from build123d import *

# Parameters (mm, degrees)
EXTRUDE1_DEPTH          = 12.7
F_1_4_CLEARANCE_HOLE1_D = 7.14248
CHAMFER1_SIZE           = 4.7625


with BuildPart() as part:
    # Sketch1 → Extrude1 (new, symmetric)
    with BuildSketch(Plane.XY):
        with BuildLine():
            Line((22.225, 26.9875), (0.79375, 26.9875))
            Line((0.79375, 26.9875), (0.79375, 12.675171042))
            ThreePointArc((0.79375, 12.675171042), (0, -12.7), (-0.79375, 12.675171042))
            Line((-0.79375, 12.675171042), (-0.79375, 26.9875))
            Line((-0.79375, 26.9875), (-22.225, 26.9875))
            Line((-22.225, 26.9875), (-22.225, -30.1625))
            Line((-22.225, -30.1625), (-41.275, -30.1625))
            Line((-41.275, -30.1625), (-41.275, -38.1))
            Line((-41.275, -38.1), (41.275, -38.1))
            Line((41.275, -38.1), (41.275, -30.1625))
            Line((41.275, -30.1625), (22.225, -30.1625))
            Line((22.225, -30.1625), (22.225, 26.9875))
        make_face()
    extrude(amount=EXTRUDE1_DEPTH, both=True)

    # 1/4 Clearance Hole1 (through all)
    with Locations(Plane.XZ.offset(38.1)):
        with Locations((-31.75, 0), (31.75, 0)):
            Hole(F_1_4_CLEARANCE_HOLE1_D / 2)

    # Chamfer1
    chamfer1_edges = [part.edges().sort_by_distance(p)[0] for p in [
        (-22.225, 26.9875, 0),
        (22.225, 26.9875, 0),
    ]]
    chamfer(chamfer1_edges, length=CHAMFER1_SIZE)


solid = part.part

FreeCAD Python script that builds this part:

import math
import FreeCAD as App
import Part
import Sketcher
from FreeCAD import Vector
Q = App.Units.Quantity


def edges_at(feature, points):
    """Names of the edges that pass closest to the given points."""
    edges = feature.Shape.Edges
    near = lambda p: min(range(len(edges)), key=lambda i: edges[i].distToShape(Part.Vertex(*p))[0])
    return sorted({f"Edge{near(p) + 1}" for p in points})

doc = App.newDocument("Part")
body = doc.addObject("PartDesign::Body", "Body")

sketch1 = body.newObject("Sketcher::SketchObject", "Sketch")
sketch1.AttachmentSupport = (doc.getObject("XY_Plane"), [""])
sketch1.MapMode = "FlatFace"
sketch1.addGeometry(Part.LineSegment(Vector(22.225, 26.9875, 0), Vector(0.79375, 26.9875, 0)), False)
sketch1.addGeometry(Part.LineSegment(Vector(0.79375, 26.9875, 0), Vector(0.79375, 12.675171, 0)), False)
sketch1.addGeometry(Part.ArcOfCircle(Part.Circle(Vector(0, 0, 0), Vector(0, 0, 1), 12.7), math.radians(93.583322), math.radians(446.416678)), False)
sketch1.addGeometry(Part.LineSegment(Vector(-0.79375, 12.675171, 0), Vector(-0.79375, 26.9875, 0)), False)
sketch1.addGeometry(Part.LineSegment(Vector(-0.79375, 26.9875, 0), Vector(-22.225, 26.9875, 0)), False)
sketch1.addGeometry(Part.LineSegment(Vector(-22.225, 26.9875, 0), Vector(-22.225, -30.1625, 0)), False)
sketch1.addGeometry(Part.LineSegment(Vector(-22.225, -30.1625, 0), Vector(-41.275, -30.1625, 0)), False)
sketch1.addGeometry(Part.LineSegment(Vector(-41.275, -30.1625, 0), Vector(-41.275, -38.1, 0)), False)
sketch1.addGeometry(Part.LineSegment(Vector(-41.275, -38.1, 0), Vector(41.275, -38.1, 0)), False)
sketch1.addGeometry(Part.LineSegment(Vector(41.275, -38.1, 0), Vector(41.275, -30.1625, 0)), False)
sketch1.addGeometry(Part.LineSegment(Vector(41.275, -30.1625, 0), Vector(22.225, -30.1625, 0)), False)
sketch1.addGeometry(Part.LineSegment(Vector(22.225, -30.1625, 0), Vector(22.225, 26.9875, 0)), False)
sketch1.addConstraint(Sketcher.Constraint("Coincident", 0, 2, 1, 1))
sketch1.addConstraint(Sketcher.Constraint("Coincident", 1, 2, 2, 2))
sketch1.addConstraint(Sketcher.Constraint("Coincident", 2, 1, 3, 1))
sketch1.addConstraint(Sketcher.Constraint("Coincident", 3, 2, 4, 1))
sketch1.addConstraint(Sketcher.Constraint("Coincident", 4, 2, 5, 1))
sketch1.addConstraint(Sketcher.Constraint("Coincident", 5, 2, 6, 1))
sketch1.addConstraint(Sketcher.Constraint("Coincident", 6, 2, 7, 1))
sketch1.addConstraint(Sketcher.Constraint("Coincident", 7, 2, 8, 1))
sketch1.addConstraint(Sketcher.Constraint("Coincident", 8, 2, 9, 1))
sketch1.addConstraint(Sketcher.Constraint("Coincident", 9, 2, 10, 1))
sketch1.addConstraint(Sketcher.Constraint("Coincident", 10, 2, 11, 1))
sketch1.addConstraint(Sketcher.Constraint("Coincident", 11, 2, 0, 1))
sketch1.addConstraint(Sketcher.Constraint("Horizontal", 0))
sketch1.addConstraint(Sketcher.Constraint("Vertical", 1))
sketch1.addConstraint(Sketcher.Constraint("Vertical", 3))
sketch1.addConstraint(Sketcher.Constraint("Horizontal", 4))
sketch1.addConstraint(Sketcher.Constraint("Vertical", 5))
sketch1.addConstraint(Sketcher.Constraint("Horizontal", 6))
sketch1.addConstraint(Sketcher.Constraint("Vertical", 7))
sketch1.addConstraint(Sketcher.Constraint("Horizontal", 8))
sketch1.addConstraint(Sketcher.Constraint("Vertical", 9))
sketch1.addConstraint(Sketcher.Constraint("Horizontal", 10))
sketch1.addConstraint(Sketcher.Constraint("Vertical", 11))
sketch1.addConstraint(Sketcher.Constraint("Coincident", 2, 3, -1, 1))
sketch1.addConstraint(Sketcher.Constraint("Symmetric", 0, 2, 3, 2, -2))
sketch1.addConstraint(Sketcher.Constraint("Symmetric", 6, 2, 9, 2, -2))
sketch1.addConstraint(Sketcher.Constraint("Equal", 0, 4))
sketch1.addConstraint(Sketcher.Constraint("Radius", 2, Q("0.5 in")))
sketch1.addConstraint(Sketcher.Constraint("DistanceX", 6, 2, 6, 1, Q("0.75 in")))
sketch1.addConstraint(Sketcher.Constraint("DistanceX", 8, 1, 8, 2, Q("3.25 in")))
sketch1.addConstraint(Sketcher.Constraint("DistanceY", 5, 2, 5, 1, Q("2.25 in")))
sketch1.addConstraint(Sketcher.Constraint("DistanceY", 7, 2, -1, 1, Q("1.5 in")))
sketch1.addConstraint(Sketcher.Constraint("DistanceX", 0, 2, 0, 1, Q("0.84375 in")))
sketch1.addConstraint(Sketcher.Constraint("DistanceY", 7, 2, 7, 1, Q("0.3125 in")))
pad1 = body.newObject("PartDesign::Pad", "Pad")
pad1.Profile = sketch1
pad1.Length = Q("1 in")
pad1.Midplane = True

sketch2 = body.newObject("Sketcher::SketchObject", "Sketch001")
sketch2.AttachmentSupport = (doc.getObject("XZ_Plane"), [""])
sketch2.MapMode = "FlatFace"
sketch2.AttachmentOffset = App.Placement(Vector(0, 0, 1.5 * 25.4), App.Rotation())
sketch2.addGeometry(Part.Circle(Vector(-31.75, 0, 0), Vector(0, 0, 1), 3.57124), False)
sketch2.addGeometry(Part.Circle(Vector(31.75, 0, 0), Vector(0, 0, 1), 3.57124), False)
sketch2.addConstraint(Sketcher.Constraint("Equal", 0, 1))
sketch2.addConstraint(Sketcher.Constraint("Symmetric", 0, 3, 1, 3, -1, 1))
sketch2.addConstraint(Sketcher.Constraint("PointOnObject", 0, 3, -1))
sketch2.addConstraint(Sketcher.Constraint("Diameter", 0, Q("0.2812 in")))
sketch2.addConstraint(Sketcher.Constraint("DistanceX", 0, 3, 1, 3, Q("2.5 in")))
doc.recompute()
hole = body.newObject("PartDesign::Hole", "Hole")
hole.Profile = sketch2
hole.ThreadType = "None"
hole.Diameter = Q("0.2812 in")
hole.DepthType = "ThroughAll"
doc.recompute()

chamfer = body.newObject("PartDesign::Chamfer", "Chamfer")
chamfer.Base = (hole, edges_at(hole, [(-22.225, 26.988, 0), (22.225, 26.988, 0)]))
chamfer.Size = Q("0.1875 in")

doc.recompute()
